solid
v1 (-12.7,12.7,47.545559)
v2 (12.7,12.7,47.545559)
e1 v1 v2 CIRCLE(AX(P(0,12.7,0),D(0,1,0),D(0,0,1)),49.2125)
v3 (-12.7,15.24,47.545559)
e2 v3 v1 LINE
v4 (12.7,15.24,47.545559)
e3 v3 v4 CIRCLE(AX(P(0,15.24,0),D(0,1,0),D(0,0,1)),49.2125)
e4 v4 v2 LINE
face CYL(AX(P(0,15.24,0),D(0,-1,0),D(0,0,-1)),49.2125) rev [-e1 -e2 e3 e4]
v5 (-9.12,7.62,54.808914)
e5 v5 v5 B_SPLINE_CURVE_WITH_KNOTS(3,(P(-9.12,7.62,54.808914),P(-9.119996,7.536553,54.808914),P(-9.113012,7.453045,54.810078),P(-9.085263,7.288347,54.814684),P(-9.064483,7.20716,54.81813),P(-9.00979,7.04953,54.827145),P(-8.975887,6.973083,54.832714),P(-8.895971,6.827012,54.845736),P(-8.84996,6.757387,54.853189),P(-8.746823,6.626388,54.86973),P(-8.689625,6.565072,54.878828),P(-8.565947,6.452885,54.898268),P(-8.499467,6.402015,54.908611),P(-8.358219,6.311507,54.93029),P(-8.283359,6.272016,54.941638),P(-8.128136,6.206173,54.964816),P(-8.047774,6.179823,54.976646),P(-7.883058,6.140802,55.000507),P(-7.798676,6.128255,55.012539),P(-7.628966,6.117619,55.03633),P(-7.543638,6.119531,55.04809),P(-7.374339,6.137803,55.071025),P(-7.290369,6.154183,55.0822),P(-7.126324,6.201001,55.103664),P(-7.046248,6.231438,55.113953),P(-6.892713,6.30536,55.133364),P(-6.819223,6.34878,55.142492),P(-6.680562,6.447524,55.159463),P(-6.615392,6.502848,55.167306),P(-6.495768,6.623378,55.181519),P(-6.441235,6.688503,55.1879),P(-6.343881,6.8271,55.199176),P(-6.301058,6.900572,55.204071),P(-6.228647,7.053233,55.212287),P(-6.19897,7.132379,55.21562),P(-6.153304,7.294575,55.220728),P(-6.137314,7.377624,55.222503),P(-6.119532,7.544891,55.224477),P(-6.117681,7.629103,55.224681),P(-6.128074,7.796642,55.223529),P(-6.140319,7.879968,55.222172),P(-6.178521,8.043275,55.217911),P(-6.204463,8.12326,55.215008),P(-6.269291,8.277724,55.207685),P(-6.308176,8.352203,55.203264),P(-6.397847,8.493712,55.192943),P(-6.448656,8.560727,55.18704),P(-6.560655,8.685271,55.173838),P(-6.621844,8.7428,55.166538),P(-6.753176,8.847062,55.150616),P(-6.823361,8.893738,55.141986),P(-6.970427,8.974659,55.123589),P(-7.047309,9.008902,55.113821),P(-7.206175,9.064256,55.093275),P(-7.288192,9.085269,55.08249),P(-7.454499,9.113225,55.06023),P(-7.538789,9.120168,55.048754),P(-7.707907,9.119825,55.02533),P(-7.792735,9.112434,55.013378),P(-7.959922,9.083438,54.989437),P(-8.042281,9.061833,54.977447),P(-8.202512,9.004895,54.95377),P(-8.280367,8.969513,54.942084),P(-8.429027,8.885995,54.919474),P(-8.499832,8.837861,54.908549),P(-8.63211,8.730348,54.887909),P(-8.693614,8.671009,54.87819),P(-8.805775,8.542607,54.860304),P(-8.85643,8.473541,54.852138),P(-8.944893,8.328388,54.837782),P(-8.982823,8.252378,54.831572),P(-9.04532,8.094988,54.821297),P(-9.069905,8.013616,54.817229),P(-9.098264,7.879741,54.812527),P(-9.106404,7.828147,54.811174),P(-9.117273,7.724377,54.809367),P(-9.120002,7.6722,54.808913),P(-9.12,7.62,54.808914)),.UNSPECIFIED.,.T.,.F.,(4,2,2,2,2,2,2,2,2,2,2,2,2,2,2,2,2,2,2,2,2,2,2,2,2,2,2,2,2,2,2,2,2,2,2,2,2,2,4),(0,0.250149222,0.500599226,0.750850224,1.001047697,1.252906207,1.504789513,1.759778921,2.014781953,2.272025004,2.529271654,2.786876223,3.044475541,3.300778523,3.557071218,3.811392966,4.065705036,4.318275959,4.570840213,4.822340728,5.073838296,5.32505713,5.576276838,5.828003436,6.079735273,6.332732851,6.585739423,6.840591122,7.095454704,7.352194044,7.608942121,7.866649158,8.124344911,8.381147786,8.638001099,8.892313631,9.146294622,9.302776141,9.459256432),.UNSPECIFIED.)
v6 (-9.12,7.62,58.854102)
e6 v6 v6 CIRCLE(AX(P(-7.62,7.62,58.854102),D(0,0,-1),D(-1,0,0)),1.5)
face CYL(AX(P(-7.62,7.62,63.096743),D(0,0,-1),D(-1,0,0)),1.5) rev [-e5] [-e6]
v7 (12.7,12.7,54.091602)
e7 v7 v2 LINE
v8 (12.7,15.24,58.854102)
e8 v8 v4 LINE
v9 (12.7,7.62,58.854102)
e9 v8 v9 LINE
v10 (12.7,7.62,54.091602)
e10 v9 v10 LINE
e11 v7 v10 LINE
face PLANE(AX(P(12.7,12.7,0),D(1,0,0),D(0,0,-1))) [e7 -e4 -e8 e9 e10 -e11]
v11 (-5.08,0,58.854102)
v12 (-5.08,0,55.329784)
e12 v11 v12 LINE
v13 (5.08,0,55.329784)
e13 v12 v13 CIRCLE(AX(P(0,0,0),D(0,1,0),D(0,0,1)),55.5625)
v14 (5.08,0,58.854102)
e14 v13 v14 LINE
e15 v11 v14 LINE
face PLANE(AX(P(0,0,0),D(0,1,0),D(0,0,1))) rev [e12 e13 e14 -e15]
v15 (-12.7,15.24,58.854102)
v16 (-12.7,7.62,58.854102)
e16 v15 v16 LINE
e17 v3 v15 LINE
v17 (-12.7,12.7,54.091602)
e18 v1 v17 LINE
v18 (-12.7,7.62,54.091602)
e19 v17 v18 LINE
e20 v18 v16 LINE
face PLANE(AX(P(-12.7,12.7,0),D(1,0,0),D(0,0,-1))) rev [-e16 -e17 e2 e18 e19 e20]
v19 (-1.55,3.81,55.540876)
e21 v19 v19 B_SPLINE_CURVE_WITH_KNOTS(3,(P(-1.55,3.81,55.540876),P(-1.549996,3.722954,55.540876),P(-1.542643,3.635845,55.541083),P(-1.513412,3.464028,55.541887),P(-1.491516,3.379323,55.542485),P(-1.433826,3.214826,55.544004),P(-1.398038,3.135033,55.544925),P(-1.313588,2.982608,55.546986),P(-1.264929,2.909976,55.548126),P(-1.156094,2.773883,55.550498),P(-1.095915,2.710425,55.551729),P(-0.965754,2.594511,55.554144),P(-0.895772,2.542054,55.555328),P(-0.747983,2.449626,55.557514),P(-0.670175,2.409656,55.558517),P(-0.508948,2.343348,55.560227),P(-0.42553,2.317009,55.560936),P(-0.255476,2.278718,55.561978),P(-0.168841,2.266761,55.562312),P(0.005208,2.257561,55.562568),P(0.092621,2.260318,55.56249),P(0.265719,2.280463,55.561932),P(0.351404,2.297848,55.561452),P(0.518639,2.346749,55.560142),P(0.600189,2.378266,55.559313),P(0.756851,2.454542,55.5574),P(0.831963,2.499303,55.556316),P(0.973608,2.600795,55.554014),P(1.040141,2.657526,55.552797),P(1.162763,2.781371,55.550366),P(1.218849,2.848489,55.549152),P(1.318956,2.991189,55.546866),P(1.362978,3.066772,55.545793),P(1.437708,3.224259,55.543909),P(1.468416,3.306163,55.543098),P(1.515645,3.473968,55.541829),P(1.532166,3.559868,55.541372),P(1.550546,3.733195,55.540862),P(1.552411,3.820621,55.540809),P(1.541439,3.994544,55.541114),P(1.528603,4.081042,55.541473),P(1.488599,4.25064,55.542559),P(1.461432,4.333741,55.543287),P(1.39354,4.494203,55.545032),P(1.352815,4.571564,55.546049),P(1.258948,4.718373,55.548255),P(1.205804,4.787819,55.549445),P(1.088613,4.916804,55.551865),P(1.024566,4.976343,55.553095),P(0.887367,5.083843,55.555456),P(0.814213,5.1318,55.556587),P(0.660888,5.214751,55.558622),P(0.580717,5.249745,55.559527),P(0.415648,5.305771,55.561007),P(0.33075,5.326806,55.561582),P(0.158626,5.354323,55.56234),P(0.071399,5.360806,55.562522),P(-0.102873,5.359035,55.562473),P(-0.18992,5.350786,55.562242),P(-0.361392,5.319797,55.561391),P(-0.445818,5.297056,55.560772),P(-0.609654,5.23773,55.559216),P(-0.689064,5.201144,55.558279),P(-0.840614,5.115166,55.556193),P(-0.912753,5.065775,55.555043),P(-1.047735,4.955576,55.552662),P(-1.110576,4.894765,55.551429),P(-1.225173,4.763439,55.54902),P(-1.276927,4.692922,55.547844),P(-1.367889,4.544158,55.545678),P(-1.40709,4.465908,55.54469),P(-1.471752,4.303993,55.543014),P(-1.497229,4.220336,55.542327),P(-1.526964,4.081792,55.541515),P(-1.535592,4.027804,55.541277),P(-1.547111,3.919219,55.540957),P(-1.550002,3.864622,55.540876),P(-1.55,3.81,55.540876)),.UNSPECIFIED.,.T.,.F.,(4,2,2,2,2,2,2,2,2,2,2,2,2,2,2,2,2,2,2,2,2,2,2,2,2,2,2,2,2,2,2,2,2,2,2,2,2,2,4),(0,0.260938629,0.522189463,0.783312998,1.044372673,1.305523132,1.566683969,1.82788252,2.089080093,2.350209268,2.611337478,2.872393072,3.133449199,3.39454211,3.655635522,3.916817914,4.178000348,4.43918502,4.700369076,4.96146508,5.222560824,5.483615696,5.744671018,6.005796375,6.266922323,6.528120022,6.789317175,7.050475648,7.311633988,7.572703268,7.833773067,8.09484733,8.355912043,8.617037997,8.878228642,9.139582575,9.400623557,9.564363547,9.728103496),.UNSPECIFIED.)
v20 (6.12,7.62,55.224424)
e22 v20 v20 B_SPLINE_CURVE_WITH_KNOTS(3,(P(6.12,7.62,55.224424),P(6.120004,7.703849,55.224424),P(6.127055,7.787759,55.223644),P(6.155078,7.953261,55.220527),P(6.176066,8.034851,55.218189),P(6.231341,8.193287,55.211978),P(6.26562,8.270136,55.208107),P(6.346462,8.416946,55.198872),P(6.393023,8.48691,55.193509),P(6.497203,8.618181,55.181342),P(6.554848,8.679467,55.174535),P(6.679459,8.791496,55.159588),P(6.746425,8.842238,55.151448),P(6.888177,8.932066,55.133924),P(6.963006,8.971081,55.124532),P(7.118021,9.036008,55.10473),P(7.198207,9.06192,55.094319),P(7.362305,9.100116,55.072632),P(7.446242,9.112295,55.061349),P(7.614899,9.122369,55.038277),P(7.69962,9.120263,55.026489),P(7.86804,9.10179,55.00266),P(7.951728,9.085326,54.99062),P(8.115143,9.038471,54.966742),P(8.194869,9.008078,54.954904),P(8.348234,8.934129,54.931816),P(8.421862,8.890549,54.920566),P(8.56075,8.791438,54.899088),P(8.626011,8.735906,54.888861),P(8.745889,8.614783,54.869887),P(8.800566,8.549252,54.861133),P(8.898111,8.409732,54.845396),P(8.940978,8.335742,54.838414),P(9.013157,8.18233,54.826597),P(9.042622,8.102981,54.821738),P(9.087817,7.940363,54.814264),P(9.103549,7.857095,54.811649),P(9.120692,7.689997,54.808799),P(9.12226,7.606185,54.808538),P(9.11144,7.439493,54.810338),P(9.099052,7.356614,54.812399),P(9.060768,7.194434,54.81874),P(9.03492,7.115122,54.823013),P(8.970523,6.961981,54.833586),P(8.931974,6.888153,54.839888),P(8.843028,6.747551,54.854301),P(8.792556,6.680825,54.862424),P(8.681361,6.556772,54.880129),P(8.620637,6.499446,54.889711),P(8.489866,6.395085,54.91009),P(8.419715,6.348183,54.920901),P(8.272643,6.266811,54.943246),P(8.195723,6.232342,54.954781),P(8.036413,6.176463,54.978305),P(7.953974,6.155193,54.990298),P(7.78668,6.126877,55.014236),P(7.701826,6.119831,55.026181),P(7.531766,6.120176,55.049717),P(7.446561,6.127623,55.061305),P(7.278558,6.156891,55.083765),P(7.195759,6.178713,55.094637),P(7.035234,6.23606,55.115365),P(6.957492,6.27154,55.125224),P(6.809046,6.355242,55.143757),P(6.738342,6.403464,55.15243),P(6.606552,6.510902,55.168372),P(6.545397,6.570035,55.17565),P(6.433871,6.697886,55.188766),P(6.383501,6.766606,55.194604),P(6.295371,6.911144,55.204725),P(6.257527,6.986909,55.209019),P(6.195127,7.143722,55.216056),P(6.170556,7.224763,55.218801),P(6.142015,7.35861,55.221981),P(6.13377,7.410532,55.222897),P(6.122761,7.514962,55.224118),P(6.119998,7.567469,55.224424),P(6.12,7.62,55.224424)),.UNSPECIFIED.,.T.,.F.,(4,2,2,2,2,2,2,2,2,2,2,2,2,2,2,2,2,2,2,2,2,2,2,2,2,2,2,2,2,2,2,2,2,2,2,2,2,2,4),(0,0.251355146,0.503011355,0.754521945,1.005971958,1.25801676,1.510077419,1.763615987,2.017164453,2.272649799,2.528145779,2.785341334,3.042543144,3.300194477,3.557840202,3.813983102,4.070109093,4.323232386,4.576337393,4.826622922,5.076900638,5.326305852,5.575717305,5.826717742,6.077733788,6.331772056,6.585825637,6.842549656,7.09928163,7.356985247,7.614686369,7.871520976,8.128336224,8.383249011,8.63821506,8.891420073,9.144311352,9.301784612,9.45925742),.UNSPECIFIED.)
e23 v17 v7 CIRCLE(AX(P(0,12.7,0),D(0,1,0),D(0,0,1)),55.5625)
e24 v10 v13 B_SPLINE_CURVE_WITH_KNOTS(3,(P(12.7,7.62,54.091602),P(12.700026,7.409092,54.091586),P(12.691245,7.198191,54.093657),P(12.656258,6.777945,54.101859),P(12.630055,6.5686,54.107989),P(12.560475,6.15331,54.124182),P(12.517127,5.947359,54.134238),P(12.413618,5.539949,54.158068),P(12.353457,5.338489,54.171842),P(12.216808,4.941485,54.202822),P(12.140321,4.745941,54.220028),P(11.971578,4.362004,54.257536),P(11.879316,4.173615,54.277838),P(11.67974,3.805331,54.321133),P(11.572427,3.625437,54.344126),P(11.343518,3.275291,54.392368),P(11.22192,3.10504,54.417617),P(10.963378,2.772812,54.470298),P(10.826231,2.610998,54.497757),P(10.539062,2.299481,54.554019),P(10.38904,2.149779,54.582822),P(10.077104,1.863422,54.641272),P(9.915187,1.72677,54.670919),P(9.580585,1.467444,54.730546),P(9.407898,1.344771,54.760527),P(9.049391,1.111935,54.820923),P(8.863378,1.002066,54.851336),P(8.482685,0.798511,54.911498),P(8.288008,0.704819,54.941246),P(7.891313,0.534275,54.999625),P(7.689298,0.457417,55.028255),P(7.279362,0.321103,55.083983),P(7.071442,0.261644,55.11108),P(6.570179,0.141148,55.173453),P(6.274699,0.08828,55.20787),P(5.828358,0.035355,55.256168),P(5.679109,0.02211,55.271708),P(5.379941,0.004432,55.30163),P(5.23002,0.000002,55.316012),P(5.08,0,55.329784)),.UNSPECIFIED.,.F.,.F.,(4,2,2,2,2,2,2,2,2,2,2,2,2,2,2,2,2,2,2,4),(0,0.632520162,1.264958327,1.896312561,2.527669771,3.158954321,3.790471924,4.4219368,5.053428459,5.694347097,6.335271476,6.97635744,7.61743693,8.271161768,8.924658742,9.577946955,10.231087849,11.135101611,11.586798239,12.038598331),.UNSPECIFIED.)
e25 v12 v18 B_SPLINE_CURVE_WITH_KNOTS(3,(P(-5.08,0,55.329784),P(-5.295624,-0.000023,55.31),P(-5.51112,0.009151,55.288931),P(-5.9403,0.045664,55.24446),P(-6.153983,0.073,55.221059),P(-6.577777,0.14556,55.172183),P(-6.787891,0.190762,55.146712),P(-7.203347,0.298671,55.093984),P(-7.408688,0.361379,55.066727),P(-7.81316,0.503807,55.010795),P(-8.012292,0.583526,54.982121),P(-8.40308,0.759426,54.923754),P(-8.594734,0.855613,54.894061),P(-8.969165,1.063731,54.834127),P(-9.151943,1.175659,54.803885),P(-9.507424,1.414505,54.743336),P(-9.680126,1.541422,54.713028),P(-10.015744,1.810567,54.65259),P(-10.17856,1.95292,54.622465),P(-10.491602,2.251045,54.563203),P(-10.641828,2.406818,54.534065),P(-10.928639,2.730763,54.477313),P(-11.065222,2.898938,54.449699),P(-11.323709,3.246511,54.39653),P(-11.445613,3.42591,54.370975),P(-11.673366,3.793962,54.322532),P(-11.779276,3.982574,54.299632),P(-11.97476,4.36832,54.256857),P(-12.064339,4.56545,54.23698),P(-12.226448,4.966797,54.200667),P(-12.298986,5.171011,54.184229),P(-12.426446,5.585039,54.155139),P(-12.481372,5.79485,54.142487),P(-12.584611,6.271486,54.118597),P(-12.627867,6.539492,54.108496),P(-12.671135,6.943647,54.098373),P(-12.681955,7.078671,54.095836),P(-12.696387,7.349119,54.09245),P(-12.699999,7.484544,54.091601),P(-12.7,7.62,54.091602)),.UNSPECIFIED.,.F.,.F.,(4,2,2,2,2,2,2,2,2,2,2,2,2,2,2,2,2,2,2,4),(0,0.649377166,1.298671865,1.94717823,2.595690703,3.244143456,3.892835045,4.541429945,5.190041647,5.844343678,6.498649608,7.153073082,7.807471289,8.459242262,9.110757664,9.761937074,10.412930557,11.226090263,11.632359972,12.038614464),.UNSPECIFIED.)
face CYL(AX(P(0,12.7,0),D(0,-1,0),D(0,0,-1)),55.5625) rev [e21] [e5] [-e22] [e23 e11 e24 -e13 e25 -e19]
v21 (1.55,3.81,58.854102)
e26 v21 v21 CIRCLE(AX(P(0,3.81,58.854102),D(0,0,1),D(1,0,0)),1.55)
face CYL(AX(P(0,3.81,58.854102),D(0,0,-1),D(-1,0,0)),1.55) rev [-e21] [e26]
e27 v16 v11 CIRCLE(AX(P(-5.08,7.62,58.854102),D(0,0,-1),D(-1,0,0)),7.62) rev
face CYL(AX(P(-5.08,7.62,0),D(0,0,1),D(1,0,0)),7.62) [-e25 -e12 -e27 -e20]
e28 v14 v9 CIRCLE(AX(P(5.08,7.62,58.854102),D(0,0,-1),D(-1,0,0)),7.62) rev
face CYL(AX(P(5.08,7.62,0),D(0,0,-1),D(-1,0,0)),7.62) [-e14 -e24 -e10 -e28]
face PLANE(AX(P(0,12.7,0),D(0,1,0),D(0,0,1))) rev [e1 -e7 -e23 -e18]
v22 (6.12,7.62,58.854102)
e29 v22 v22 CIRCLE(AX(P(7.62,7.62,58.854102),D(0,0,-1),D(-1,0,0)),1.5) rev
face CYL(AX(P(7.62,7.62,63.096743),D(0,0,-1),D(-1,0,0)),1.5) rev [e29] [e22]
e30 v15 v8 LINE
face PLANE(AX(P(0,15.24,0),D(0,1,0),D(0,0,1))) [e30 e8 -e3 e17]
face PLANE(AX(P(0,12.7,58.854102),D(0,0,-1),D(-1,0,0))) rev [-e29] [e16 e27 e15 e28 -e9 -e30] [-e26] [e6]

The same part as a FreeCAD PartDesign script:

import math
import FreeCAD as App
import Part
import Sketcher

V = App.Vector
Q = App.Units.Quantity


def edges_at(feature, points):
    """Names of the edges that pass closest to the given points."""
    edges = feature.Shape.Edges
    near = lambda p: min(range(len(edges)), key=lambda i: edges[i].distToShape(Part.Vertex(*p))[0])
    return sorted({f"Edge{near(p) + 1}" for p in points})

doc = App.newDocument("Part")
params = doc.addObject("Spreadsheet::Sheet", "Params")
for row, (alias, value) in enumerate([
    ("sketch1_width", "1 in"),
    ("sketch1_radius", "2.1875 in"),
    ("sketch1_height", "0.1875 in"),
    ("pad1_length", "0.5 in"),
    ("pocket1_length", "58.854102 mm"),
    ("fillet_radius", "0.3 in"),
    ("sketch4_width", "1 in"),
    ("sketch4_radius", "1.9375 in"),
    ("pad2_length", "0.1 in"),
], start=1):
    params.set(f"A{row}", alias)
    params.set(f"B{row}", "=" + value)
    params.setAlias(f"B{row}", alias)

body = doc.addObject("PartDesign::Body", "Body")

# Sketch on XZ plane
sketch1 = doc.addObject("Sketcher::SketchObject", "Sketch")
body.addObject(sketch1)
sketch1.AttachmentSupport = (doc.XZ_Plane, [""])
sketch1.MapMode = "FlatFace"
sketch1.addGeometry([
    Part.ArcOfCircle(Part.Circle(V(0, 0, 0), V(0, 0, 1), 55.6), math.radians(77), math.radians(103)),
    Part.LineSegment(V(-12.7, 54.1, 0), V(-12.7, 58.9, 0)),
    Part.LineSegment(V(-12.7, 58.9, 0), V(12.7, 58.9, 0)),
    Part.LineSegment(V(12.7, 58.9, 0), V(12.7, 54.1, 0)),
], False)
sketch1.addConstraint([
    Sketcher.Constraint("Coincident", 0, 2, 1, 1),
    Sketcher.Constraint("Coincident", 1, 2, 2, 1),
    Sketcher.Constraint("Coincident", 2, 2, 3, 1),
    Sketcher.Constraint("Coincident", 3, 2, 0, 1),
    Sketcher.Constraint("Vertical", 1),
    Sketcher.Constraint("Horizontal", 2),
    Sketcher.Constraint("Vertical", 3),
    Sketcher.Constraint("Coincident", 0, 3, -1, 1),
    Sketcher.Constraint("Horizontal", 0, 2, 3, 2),
    Sketcher.Constraint("DistanceX", 2, 1, 2, 2, Q("1 in")),
    Sketcher.Constraint("Radius", 0, Q("2.1875 in")),
    Sketcher.Constraint("DistanceY", 1, 1, 1, 2, Q("0.1875 in")),
])
sketch1.setExpression("Constraints[9]", "Params.sketch1_width")
sketch1.setExpression("Constraints[10]", "Params.sketch1_radius")
sketch1.setExpression("Constraints[11]", "Params.sketch1_height")
pad1 = doc.addObject("PartDesign::Pad", "Pad")
body.addObject(pad1)
pad1.Profile = sketch1
pad1.setExpression("Length", "Params.pad1_length")
pad1.Reversed = True

# Sketch on XY plane
sketch2 = doc.addObject("Sketcher::SketchObject", "Sketch001")
body.addObject(sketch2)
sketch2.AttachmentSupport = (doc.XY_Plane, [""])
sketch2.MapMode = "FlatFace"
sketch2.addGeometry(Part.Circle(V(-7.6, 7.6, 0), V(0, 0, 1), 1.5), False)
sketch2.addConstraint([
    Sketcher.Constraint("DistanceX", 0, 3, -1, 1, Q("0.3 in")),
    Sketcher.Constraint("DistanceY", -1, 1, 0, 3, Q("0.3 in")),
    Sketcher.Constraint("Diameter", 0, 3.0),
])
pocket1 = doc.addObject("PartDesign::Pocket", "Pocket")
body.addObject(pocket1)
pocket1.Profile = sketch2
pocket1.setExpression("Length", "Params.pocket1_length")
pocket1.Reversed = True
doc.recompute()

mirrored = doc.addObject("PartDesign::Mirrored", "Mirrored")
body.addObject(mirrored)
mirrored.Originals = [pocket1]
mirrored.MirrorPlane = (doc.YZ_Plane, [""])
body.Tip = mirrored
doc.recompute()

fillet = doc.addObject("PartDesign::Fillet", "Fillet")
body.addObject(fillet)
fillet.Base = (mirrored, edges_at(mirrored, [(-12.7, 0, 56.473), (12.7, 0, 56.473)]))
fillet.setExpression("Radius", "Params.fillet_radius")

# Sketch on XY plane
sketch3 = doc.addObject("Sketcher::SketchObject", "Sketch002")
body.addObject(sketch3)
sketch3.AttachmentSupport = (doc.XY_Plane, [""])
sketch3.MapMode = "FlatFace"
sketch3.addGeometry([
    Part.ArcOfCircle(Part.Circle(V(0, 3.8, 0), V(0, 0, 1), 1.5), math.radians(0), math.radians(90)),
    Part.ArcOfCircle(Part.Circle(V(0, 3.8, 0), V(0, 0, 1), 1.5), math.radians(90), math.radians(270)),
    Part.ArcOfCircle(Part.Circle(V(0, 3.8, 0), V(0, 0, 1), 1.5), math.radians(-90), math.radians(0)),
], False)
sketch3.addConstraint([
    Sketcher.Constraint("Tangent", 0, 2, 1, 1),
    Sketcher.Constraint("Tangent", 1, 2, 2, 1),
    Sketcher.Constraint("Tangent", 2, 2, 0, 1),
    Sketcher.Constraint("PointOnObject", 0, 3, -2),
    Sketcher.Constraint("PointOnObject", 0, 2, -2),
    Sketcher.Constraint("PointOnObject", 1, 2, -2),
    Sketcher.Constraint("Horizontal", 1, 3, 2, 2),
    Sketcher.Constraint("DistanceY", -1, 1, 0, 3, Q("0.15 in")),
    Sketcher.Constraint("Radius", 0, 1.55),
])
pocket2 = doc.addObject("PartDesign::Pocket", "Pocket001")
body.addObject(pocket2)
pocket2.Profile = sketch3
pocket2.Type = "ThroughAll"
pocket2.Reversed = True

# Sketch on XZ plane
sketch4 = doc.addObject("Sketcher::SketchObject", "Sketch003")
body.addObject(sketch4)
sketch4.AttachmentSupport = (doc.XZ_Plane, [""])
sketch4.MapMode = "FlatFace"
sketch4.AttachmentOffset = App.Placement(V(0, 0, -0.5 * 25.4), App.Rotation())
sketch4.addGeometry([
    Part.LineSegment(V(-13, 59, 0), V(13, 59, 0)),
    Part.LineSegment(V(13, 59, 0), V(13, 48, 0)),
    Part.ArcOfCircle(Part.Circle(V(0, 0, 0), V(0, 0, 1), 49), math.radians(75), math.radians(105)),
    Part.LineSegment(V(-13, 48, 0), V(-13, 59, 0)),
], False)
sketch4.addConstraint([
    Sketcher.Constraint("Coincident", 0, 2, 1, 1),
    Sketcher.Constraint("Coincident", 1, 2, 2, 1),
    Sketcher.Constraint("Coincident", 2, 2, 3, 1),
    Sketcher.Constraint("Coincident", 3, 2, 0, 1),
    Sketcher.Constraint("Horizontal", 0),
    Sketcher.Constraint("Vertical", 1),
    Sketcher.Constraint("Vertical", 3),
    Sketcher.Constraint("Coincident", 2, 3, -1, 1),
    Sketcher.Constraint("Horizontal", 1, 2, 2, 2),
    Sketcher.Constraint("DistanceX", 0, 1, 0, 2, Q("1 in")),
    Sketcher.Constraint("Radius", 2, Q("1.9375 in")),
    Sketcher.Constraint("DistanceY", -1, 1, 0, 2, 58.854102),
])
sketch4.setExpression("Constraints[9]", "Params.sketch4_width")
sketch4.setExpression("Constraints[10]", "Params.sketch4_radius")
pad2 = doc.addObject("PartDesign::Pad", "Pad001")
body.addObject(pad2)
pad2.Profile = sketch4
pad2.setExpression("Length", "Params.pad2_length")
pad2.Reversed = True

doc.recompute()
